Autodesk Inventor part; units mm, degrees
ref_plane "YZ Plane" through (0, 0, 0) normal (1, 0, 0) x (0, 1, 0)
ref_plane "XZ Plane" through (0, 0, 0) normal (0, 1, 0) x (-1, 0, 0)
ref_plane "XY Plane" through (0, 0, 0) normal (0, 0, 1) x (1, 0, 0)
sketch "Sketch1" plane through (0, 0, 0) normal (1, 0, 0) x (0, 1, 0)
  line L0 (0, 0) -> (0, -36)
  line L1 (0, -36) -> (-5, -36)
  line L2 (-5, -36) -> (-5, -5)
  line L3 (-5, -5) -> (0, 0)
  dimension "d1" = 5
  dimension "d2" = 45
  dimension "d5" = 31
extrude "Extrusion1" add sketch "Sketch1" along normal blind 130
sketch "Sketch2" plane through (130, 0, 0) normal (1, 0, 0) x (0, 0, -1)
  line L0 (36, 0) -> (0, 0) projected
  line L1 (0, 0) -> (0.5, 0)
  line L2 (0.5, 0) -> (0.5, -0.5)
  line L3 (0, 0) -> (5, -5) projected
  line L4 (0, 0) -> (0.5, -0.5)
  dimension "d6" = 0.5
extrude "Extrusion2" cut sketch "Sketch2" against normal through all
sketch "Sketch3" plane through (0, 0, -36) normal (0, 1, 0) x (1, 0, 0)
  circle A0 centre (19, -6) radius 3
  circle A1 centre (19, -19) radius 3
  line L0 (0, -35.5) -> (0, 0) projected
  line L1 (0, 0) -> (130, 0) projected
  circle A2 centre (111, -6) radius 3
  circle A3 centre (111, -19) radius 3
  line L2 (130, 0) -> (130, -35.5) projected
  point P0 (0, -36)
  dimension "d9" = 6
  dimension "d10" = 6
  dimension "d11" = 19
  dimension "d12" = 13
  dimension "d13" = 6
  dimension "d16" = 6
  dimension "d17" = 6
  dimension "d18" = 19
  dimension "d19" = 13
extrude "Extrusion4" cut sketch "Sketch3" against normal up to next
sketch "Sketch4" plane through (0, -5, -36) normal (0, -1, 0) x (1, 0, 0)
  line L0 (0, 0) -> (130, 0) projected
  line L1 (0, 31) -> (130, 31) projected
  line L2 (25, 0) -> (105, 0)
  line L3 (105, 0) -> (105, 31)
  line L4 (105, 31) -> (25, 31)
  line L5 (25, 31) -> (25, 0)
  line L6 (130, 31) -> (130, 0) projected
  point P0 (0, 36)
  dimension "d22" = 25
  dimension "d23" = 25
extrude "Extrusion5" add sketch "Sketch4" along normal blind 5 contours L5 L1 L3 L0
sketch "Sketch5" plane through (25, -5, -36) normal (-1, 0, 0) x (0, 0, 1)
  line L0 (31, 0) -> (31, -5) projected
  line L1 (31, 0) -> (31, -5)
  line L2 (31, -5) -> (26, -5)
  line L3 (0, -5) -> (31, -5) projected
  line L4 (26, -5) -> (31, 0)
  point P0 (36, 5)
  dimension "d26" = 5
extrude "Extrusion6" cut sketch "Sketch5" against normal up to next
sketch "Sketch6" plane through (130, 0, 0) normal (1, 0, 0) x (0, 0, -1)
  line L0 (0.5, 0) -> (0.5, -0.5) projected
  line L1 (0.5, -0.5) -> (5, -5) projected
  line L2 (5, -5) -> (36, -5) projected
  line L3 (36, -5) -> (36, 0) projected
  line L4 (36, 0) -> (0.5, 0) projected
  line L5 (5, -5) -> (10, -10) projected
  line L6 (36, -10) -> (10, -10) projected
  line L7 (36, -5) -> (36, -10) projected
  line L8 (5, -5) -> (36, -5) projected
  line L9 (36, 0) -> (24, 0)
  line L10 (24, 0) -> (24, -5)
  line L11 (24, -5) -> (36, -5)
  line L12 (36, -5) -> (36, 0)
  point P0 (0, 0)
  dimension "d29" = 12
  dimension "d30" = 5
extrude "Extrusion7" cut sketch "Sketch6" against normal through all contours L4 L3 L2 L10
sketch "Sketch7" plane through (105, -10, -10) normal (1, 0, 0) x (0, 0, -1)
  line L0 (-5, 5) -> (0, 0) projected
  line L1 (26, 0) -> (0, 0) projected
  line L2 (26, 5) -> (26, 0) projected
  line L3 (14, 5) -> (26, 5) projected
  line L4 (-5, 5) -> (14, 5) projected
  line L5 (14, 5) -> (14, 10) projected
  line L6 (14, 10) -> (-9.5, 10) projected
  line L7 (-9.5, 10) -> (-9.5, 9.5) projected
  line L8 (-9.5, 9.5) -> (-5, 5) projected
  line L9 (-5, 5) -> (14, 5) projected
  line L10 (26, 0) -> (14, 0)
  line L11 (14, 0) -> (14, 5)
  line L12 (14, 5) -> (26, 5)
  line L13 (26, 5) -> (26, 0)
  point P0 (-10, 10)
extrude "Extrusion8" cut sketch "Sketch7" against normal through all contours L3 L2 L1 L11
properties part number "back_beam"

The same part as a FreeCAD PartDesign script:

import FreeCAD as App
import Part
import Sketcher

V = App.Vector

doc = App.newDocument("Part")
body = doc.addObject("PartDesign::Body", "Body")

# Sketch on YZ plane
sketch1 = doc.addObject("Sketcher::SketchObject", "Sketch")
body.addObject(sketch1)
sketch1.AttachmentSupport = (doc.YZ_Plane, [""])
sketch1.MapMode = "FlatFace"
sketch1.addGeometry([
    Part.LineSegment(V(0, -36, 0), V(0, 0, 0)),
    Part.LineSegment(V(0, 0, 0), V(-5, -5, 0)),
    Part.LineSegment(V(-5, -5, 0), V(-5, -36, 0)),
    Part.LineSegment(V(-5, -36, 0), V(0, -36, 0)),
], False)
sketch1.addConstraint([
    Sketcher.Constraint("Coincident", 0, 2, 1, 1),
    Sketcher.Constraint("Coincident", 1, 2, 2, 1),
    Sketcher.Constraint("Coincident", 2, 2, 3, 1),
    Sketcher.Constraint("Coincident", 3, 2, 0, 1),
    Sketcher.Constraint("Vertical", 0),
    Sketcher.Constraint("Vertical", 2),
    Sketcher.Constraint("Horizontal", 3),
    Sketcher.Constraint("Coincident", 0, 2, -1, 1),
    Sketcher.Constraint("DistanceX", 3, 1, 3, 2, 5.0),
    Sketcher.Constraint("DistanceY", 2, 2, 2, 1, 31.0),
    Sketcher.Constraint("DistanceY", 1, 2, -1, 1, 5.0),
])
pad1 = doc.addObject("PartDesign::Pad", "Pad")
body.addObject(pad1)
pad1.Profile = sketch1
pad1.Length = 130

# Sketch on YZ plane
sketch2 = doc.addObject("Sketcher::SketchObject", "Sketch001")
body.addObject(sketch2)
sketch2.AttachmentSupport = (doc.YZ_Plane, [""])
sketch2.MapMode = "FlatFace"
sketch2.AttachmentOffset = App.Placement(V(0, 0, 130), App.Rotation())
sketch2.addGeometry([
    Part.LineSegment(V(-0.5, -0.5, 0), V(0, -0.5, 0)),
    Part.LineSegment(V(0, -0.5, 0), V(0, 0, 0)),
    Part.LineSegment(V(0, 0, 0), V(-0.5, -0.5, 0)),
], False)
sketch2.addConstraint([
    Sketcher.Constraint("Coincident", 0, 2, 1, 1),
    Sketcher.Constraint("Coincident", 1, 2, 2, 1),
    Sketcher.Constraint("Coincident", 2, 2, 0, 1),
    Sketcher.Constraint("Horizontal", 0),
    Sketcher.Constraint("Vertical", 1),
    Sketcher.Constraint("Coincident", 1, 2, -1, 1),
    Sketcher.Constraint("Equal", 0, 1),
    Sketcher.Constraint("DistanceX", 0, 1, 0, 2, 0.5),
])
pocket1 = doc.addObject("PartDesign::Pocket", "Pocket")
body.addObject(pocket1)
pocket1.Profile = sketch2
pocket1.Type = "ThroughAll"

# Sketch on XZ plane
sketch3 = doc.addObject("Sketcher::SketchObject", "Sketch002")
body.addObject(sketch3)
sketch3.AttachmentSupport = (doc.XZ_Plane, [""])
sketch3.MapMode = "FlatFace"
sketch3.addGeometry([
    Part.Circle(V(19, -30, 0), V(0, 0, 1), 3),
    Part.Circle(V(19, -17, 0), V(0, 0, 1), 3),
    Part.Circle(V(111, -30, 0), V(0, 0, 1), 3),
    Part.Circle(V(111, -17, 0), V(0, 0, 1), 3),
], False)
sketch3.addConstraint([
    Sketcher.Constraint("Equal", 0, 1),
    Sketcher.Constraint("Equal", 1, 2),
    Sketcher.Constraint("Equal", 2, 3),
    Sketcher.Constraint("Horizontal", 0, 3, 2, 3),
    Sketcher.Constraint("Horizontal", 1, 3, 3, 3),
    Sketcher.Constraint("Vertical", 0, 3, 1, 3),
    Sketcher.Constraint("Vertical", 2, 3, 3, 3),
    Sketcher.Constraint("Diameter", 0, 6.0),
    Sketcher.Constraint("DistanceX", -1, 1, 0, 3, 19.0),
    Sketcher.Constraint("DistanceY", 0, 3, 1, 3, 13.0),
    Sketcher.Constraint("DistanceY", 0, 3, -1, 1, 30.0),
    Sketcher.Constraint("DistanceX", -1, 1, 2, 3, 111.0),
])
pocket2 = doc.addObject("PartDesign::Pocket", "Pocket001")
body.addObject(pocket2)
pocket2.Profile = sketch3
pocket2.Type = "UpToFirst"
pocket2.Reversed = True

# Sketch on XZ plane
sketch4 = doc.addObject("Sketcher::SketchObject", "Sketch003")
body.addObject(sketch4)
sketch4.AttachmentSupport = (doc.XZ_Plane, [""])
sketch4.MapMode = "FlatFace"
sketch4.AttachmentOffset = App.Placement(V(0, 0, 5), App.Rotation())
sketch4.addGeometry([
    Part.LineSegment(V(25, -5, 0), V(25, -36, 0)),
    Part.LineSegment(V(25, -36, 0), V(105, -36, 0)),
    Part.LineSegment(V(105, -36, 0), V(105, -5, 0)),
    Part.LineSegment(V(105, -5, 0), V(25, -5, 0)),
], False)
sketch4.addConstraint([
    Sketcher.Constraint("Coincident", 0, 2, 1, 1),
    Sketcher.Constraint("Coincident", 1, 2, 2, 1),
    Sketcher.Constraint("Coincident", 2, 2, 3, 1),
    Sketcher.Constraint("Coincident", 3, 2, 0, 1),
    Sketcher.Constraint("Vertical", 0),
    Sketcher.Constraint("Horizontal", 1),
    Sketcher.Constraint("Vertical", 2),
    Sketcher.Constraint("Horizontal", 3),
    Sketcher.Constraint("DistanceX", -1, 1, 0, 2, 25.0),
    Sketcher.Constraint("DistanceX", 1, 1, 1, 2, 80.0),
    Sketcher.Constraint("DistanceY", 0, 2, 0, 1, 31.0),
    Sketcher.Constraint("DistanceY", 0, 2, -1, 1, 36.0),
])
pad2 = doc.addObject("PartDesign::Pad", "Pad001")
body.addObject(pad2)
pad2.Profile = sketch4
pad2.Length = 5

# Sketch on YZ plane
sketch5 = doc.addObject("Sketcher::SketchObject", "Sketch004")
body.addObject(sketch5)
sketch5.AttachmentSupport = (doc.YZ_Plane, [""])
sketch5.MapMode = "FlatFace"
sketch5.AttachmentOffset = App.Placement(V(0, 0, 25), App.Rotation())
sketch5.addGeometry([
    Part.LineSegment(V(-10, -5, 0), V(-5, -5, 0)),
    Part.LineSegment(V(-5, -5, 0), V(-10, -10, 0)),
    Part.LineSegment(V(-10, -10, 0), V(-10, -5, 0)),
], False)
sketch5.addConstraint([
    Sketcher.Constraint("Coincident", 0, 2, 1, 1),
    Sketcher.Constraint("Coincident", 1, 2, 2, 1),
    Sketcher.Constraint("Coincident", 2, 2, 0, 1),
    Sketcher.Constraint("Horizontal", 0),
    Sketcher.Constraint("Vertical", 2),
    Sketcher.Constraint("Equal", 0, 2),
    Sketcher.Constraint("DistanceX", 0, 1, 0, 2, 5.0),
    Sketcher.Constraint("DistanceX", 0, 2, -1, 1, 5.0),
    Sketcher.Constraint("DistanceY", 0, 2, -1, 1, 5.0),
])
pocket3 = doc.addObject("PartDesign::Pocket", "Pocket002")
body.addObject(pocket3)
pocket3.Profile = sketch5
pocket3.Type = "UpToFirst"
pocket3.Reversed = True

# Sketch on YZ plane
sketch6 = doc.addObject("Sketcher::SketchObject", "Sketch005")
body.addObject(sketch6)
sketch6.AttachmentSupport = (doc.YZ_Plane, [""])
sketch6.MapMode = "FlatFace"
sketch6.AttachmentOffset = App.Placement(V(0, 0, 130), App.Rotation())
sketch6.addGeometry([
    Part.LineSegment(V(0, -36, 0), V(0, -24, 0)),
    Part.LineSegment(V(0, -24, 0), V(-5, -24, 0)),
    Part.LineSegment(V(-5, -24, 0), V(-5, -36, 0)),
    Part.LineSegment(V(-5, -36, 0), V(0, -36, 0)),
], False)
sketch6.addConstraint([
    Sketcher.Constraint("Coincident", 0, 2, 1, 1),
    Sketcher.Constraint("Coincident", 1, 2, 2, 1),
    Sketcher.Constraint("Coincident", 2, 2, 3, 1),
    Sketcher.Constraint("Coincident", 3, 2, 0, 1),
    Sketcher.Constraint("Vertical", 0),
    Sketcher.Constraint("Horizontal", 1),
    Sketcher.Constraint("Vertical", 2),
    Sketcher.Constraint("Horizontal", 3),
    Sketcher.Constraint("PointOnObject", 0, 2, -2),
    Sketcher.Constraint("DistanceX", 1, 2, 1, 1, 5.0),
    Sketcher.Constraint("DistanceY", 0, 1, 0, 2, 12.0),
    Sketcher.Constraint("DistanceY", 0, 2, -1, 1, 24.0),
])
pocket4 = doc.addObject("PartDesign::Pocket", "Pocket003")
body.addObject(pocket4)
pocket4.Profile = sketch6
pocket4.Type = "ThroughAll"

# Sketch on YZ plane
sketch7 = doc.addObject("Sketcher::SketchObject", "Sketch006")
body.addObject(sketch7)
sketch7.AttachmentSupport = (doc.YZ_Plane, [""])
sketch7.MapMode = "FlatFace"
sketch7.AttachmentOffset = App.Placement(V(0, 0, 105), App.Rotation())
sketch7.addGeometry([
    Part.LineSegment(V(-5, -36, 0), V(-5, -24, 0)),
    Part.LineSegment(V(-5, -24, 0), V(-10, -24, 0)),
    Part.LineSegment(V(-10, -24, 0), V(-10, -36, 0)),
    Part.LineSegment(V(-10, -36, 0), V(-5, -36, 0)),
], False)
sketch7.addConstraint([
    Sketcher.Constraint("Coincident", 0, 2, 1, 1),
    Sketcher.Constraint("Coincident", 1, 2, 2, 1),
    Sketcher.Constraint("Coincident", 2, 2, 3, 1),
    Sketcher.Constraint("Coincident", 3, 2, 0, 1),
    Sketcher.Constraint("Vertical", 0),
    Sketcher.Constraint("Horizontal", 1),
    Sketcher.Constraint("Vertical", 2),
    Sketcher.Constraint("Horizontal", 3),
    Sketcher.Constraint("DistanceX", 1, 2, 1, 1, 5.0),
    Sketcher.Constraint("DistanceY", 0, 1, 0, 2, 12.0),
    Sketcher.Constraint("DistanceX", 0, 2, -1, 1, 5.0),
    Sketcher.Constraint("DistanceY", 0, 2, -1, 1, 24.0),
])
pocket5 = doc.addObject("PartDesign::Pocket", "Pocket004")
body.addObject(pocket5)
pocket5.Profile = sketch7
pocket5.Type = "ThroughAll"

doc.recompute()
